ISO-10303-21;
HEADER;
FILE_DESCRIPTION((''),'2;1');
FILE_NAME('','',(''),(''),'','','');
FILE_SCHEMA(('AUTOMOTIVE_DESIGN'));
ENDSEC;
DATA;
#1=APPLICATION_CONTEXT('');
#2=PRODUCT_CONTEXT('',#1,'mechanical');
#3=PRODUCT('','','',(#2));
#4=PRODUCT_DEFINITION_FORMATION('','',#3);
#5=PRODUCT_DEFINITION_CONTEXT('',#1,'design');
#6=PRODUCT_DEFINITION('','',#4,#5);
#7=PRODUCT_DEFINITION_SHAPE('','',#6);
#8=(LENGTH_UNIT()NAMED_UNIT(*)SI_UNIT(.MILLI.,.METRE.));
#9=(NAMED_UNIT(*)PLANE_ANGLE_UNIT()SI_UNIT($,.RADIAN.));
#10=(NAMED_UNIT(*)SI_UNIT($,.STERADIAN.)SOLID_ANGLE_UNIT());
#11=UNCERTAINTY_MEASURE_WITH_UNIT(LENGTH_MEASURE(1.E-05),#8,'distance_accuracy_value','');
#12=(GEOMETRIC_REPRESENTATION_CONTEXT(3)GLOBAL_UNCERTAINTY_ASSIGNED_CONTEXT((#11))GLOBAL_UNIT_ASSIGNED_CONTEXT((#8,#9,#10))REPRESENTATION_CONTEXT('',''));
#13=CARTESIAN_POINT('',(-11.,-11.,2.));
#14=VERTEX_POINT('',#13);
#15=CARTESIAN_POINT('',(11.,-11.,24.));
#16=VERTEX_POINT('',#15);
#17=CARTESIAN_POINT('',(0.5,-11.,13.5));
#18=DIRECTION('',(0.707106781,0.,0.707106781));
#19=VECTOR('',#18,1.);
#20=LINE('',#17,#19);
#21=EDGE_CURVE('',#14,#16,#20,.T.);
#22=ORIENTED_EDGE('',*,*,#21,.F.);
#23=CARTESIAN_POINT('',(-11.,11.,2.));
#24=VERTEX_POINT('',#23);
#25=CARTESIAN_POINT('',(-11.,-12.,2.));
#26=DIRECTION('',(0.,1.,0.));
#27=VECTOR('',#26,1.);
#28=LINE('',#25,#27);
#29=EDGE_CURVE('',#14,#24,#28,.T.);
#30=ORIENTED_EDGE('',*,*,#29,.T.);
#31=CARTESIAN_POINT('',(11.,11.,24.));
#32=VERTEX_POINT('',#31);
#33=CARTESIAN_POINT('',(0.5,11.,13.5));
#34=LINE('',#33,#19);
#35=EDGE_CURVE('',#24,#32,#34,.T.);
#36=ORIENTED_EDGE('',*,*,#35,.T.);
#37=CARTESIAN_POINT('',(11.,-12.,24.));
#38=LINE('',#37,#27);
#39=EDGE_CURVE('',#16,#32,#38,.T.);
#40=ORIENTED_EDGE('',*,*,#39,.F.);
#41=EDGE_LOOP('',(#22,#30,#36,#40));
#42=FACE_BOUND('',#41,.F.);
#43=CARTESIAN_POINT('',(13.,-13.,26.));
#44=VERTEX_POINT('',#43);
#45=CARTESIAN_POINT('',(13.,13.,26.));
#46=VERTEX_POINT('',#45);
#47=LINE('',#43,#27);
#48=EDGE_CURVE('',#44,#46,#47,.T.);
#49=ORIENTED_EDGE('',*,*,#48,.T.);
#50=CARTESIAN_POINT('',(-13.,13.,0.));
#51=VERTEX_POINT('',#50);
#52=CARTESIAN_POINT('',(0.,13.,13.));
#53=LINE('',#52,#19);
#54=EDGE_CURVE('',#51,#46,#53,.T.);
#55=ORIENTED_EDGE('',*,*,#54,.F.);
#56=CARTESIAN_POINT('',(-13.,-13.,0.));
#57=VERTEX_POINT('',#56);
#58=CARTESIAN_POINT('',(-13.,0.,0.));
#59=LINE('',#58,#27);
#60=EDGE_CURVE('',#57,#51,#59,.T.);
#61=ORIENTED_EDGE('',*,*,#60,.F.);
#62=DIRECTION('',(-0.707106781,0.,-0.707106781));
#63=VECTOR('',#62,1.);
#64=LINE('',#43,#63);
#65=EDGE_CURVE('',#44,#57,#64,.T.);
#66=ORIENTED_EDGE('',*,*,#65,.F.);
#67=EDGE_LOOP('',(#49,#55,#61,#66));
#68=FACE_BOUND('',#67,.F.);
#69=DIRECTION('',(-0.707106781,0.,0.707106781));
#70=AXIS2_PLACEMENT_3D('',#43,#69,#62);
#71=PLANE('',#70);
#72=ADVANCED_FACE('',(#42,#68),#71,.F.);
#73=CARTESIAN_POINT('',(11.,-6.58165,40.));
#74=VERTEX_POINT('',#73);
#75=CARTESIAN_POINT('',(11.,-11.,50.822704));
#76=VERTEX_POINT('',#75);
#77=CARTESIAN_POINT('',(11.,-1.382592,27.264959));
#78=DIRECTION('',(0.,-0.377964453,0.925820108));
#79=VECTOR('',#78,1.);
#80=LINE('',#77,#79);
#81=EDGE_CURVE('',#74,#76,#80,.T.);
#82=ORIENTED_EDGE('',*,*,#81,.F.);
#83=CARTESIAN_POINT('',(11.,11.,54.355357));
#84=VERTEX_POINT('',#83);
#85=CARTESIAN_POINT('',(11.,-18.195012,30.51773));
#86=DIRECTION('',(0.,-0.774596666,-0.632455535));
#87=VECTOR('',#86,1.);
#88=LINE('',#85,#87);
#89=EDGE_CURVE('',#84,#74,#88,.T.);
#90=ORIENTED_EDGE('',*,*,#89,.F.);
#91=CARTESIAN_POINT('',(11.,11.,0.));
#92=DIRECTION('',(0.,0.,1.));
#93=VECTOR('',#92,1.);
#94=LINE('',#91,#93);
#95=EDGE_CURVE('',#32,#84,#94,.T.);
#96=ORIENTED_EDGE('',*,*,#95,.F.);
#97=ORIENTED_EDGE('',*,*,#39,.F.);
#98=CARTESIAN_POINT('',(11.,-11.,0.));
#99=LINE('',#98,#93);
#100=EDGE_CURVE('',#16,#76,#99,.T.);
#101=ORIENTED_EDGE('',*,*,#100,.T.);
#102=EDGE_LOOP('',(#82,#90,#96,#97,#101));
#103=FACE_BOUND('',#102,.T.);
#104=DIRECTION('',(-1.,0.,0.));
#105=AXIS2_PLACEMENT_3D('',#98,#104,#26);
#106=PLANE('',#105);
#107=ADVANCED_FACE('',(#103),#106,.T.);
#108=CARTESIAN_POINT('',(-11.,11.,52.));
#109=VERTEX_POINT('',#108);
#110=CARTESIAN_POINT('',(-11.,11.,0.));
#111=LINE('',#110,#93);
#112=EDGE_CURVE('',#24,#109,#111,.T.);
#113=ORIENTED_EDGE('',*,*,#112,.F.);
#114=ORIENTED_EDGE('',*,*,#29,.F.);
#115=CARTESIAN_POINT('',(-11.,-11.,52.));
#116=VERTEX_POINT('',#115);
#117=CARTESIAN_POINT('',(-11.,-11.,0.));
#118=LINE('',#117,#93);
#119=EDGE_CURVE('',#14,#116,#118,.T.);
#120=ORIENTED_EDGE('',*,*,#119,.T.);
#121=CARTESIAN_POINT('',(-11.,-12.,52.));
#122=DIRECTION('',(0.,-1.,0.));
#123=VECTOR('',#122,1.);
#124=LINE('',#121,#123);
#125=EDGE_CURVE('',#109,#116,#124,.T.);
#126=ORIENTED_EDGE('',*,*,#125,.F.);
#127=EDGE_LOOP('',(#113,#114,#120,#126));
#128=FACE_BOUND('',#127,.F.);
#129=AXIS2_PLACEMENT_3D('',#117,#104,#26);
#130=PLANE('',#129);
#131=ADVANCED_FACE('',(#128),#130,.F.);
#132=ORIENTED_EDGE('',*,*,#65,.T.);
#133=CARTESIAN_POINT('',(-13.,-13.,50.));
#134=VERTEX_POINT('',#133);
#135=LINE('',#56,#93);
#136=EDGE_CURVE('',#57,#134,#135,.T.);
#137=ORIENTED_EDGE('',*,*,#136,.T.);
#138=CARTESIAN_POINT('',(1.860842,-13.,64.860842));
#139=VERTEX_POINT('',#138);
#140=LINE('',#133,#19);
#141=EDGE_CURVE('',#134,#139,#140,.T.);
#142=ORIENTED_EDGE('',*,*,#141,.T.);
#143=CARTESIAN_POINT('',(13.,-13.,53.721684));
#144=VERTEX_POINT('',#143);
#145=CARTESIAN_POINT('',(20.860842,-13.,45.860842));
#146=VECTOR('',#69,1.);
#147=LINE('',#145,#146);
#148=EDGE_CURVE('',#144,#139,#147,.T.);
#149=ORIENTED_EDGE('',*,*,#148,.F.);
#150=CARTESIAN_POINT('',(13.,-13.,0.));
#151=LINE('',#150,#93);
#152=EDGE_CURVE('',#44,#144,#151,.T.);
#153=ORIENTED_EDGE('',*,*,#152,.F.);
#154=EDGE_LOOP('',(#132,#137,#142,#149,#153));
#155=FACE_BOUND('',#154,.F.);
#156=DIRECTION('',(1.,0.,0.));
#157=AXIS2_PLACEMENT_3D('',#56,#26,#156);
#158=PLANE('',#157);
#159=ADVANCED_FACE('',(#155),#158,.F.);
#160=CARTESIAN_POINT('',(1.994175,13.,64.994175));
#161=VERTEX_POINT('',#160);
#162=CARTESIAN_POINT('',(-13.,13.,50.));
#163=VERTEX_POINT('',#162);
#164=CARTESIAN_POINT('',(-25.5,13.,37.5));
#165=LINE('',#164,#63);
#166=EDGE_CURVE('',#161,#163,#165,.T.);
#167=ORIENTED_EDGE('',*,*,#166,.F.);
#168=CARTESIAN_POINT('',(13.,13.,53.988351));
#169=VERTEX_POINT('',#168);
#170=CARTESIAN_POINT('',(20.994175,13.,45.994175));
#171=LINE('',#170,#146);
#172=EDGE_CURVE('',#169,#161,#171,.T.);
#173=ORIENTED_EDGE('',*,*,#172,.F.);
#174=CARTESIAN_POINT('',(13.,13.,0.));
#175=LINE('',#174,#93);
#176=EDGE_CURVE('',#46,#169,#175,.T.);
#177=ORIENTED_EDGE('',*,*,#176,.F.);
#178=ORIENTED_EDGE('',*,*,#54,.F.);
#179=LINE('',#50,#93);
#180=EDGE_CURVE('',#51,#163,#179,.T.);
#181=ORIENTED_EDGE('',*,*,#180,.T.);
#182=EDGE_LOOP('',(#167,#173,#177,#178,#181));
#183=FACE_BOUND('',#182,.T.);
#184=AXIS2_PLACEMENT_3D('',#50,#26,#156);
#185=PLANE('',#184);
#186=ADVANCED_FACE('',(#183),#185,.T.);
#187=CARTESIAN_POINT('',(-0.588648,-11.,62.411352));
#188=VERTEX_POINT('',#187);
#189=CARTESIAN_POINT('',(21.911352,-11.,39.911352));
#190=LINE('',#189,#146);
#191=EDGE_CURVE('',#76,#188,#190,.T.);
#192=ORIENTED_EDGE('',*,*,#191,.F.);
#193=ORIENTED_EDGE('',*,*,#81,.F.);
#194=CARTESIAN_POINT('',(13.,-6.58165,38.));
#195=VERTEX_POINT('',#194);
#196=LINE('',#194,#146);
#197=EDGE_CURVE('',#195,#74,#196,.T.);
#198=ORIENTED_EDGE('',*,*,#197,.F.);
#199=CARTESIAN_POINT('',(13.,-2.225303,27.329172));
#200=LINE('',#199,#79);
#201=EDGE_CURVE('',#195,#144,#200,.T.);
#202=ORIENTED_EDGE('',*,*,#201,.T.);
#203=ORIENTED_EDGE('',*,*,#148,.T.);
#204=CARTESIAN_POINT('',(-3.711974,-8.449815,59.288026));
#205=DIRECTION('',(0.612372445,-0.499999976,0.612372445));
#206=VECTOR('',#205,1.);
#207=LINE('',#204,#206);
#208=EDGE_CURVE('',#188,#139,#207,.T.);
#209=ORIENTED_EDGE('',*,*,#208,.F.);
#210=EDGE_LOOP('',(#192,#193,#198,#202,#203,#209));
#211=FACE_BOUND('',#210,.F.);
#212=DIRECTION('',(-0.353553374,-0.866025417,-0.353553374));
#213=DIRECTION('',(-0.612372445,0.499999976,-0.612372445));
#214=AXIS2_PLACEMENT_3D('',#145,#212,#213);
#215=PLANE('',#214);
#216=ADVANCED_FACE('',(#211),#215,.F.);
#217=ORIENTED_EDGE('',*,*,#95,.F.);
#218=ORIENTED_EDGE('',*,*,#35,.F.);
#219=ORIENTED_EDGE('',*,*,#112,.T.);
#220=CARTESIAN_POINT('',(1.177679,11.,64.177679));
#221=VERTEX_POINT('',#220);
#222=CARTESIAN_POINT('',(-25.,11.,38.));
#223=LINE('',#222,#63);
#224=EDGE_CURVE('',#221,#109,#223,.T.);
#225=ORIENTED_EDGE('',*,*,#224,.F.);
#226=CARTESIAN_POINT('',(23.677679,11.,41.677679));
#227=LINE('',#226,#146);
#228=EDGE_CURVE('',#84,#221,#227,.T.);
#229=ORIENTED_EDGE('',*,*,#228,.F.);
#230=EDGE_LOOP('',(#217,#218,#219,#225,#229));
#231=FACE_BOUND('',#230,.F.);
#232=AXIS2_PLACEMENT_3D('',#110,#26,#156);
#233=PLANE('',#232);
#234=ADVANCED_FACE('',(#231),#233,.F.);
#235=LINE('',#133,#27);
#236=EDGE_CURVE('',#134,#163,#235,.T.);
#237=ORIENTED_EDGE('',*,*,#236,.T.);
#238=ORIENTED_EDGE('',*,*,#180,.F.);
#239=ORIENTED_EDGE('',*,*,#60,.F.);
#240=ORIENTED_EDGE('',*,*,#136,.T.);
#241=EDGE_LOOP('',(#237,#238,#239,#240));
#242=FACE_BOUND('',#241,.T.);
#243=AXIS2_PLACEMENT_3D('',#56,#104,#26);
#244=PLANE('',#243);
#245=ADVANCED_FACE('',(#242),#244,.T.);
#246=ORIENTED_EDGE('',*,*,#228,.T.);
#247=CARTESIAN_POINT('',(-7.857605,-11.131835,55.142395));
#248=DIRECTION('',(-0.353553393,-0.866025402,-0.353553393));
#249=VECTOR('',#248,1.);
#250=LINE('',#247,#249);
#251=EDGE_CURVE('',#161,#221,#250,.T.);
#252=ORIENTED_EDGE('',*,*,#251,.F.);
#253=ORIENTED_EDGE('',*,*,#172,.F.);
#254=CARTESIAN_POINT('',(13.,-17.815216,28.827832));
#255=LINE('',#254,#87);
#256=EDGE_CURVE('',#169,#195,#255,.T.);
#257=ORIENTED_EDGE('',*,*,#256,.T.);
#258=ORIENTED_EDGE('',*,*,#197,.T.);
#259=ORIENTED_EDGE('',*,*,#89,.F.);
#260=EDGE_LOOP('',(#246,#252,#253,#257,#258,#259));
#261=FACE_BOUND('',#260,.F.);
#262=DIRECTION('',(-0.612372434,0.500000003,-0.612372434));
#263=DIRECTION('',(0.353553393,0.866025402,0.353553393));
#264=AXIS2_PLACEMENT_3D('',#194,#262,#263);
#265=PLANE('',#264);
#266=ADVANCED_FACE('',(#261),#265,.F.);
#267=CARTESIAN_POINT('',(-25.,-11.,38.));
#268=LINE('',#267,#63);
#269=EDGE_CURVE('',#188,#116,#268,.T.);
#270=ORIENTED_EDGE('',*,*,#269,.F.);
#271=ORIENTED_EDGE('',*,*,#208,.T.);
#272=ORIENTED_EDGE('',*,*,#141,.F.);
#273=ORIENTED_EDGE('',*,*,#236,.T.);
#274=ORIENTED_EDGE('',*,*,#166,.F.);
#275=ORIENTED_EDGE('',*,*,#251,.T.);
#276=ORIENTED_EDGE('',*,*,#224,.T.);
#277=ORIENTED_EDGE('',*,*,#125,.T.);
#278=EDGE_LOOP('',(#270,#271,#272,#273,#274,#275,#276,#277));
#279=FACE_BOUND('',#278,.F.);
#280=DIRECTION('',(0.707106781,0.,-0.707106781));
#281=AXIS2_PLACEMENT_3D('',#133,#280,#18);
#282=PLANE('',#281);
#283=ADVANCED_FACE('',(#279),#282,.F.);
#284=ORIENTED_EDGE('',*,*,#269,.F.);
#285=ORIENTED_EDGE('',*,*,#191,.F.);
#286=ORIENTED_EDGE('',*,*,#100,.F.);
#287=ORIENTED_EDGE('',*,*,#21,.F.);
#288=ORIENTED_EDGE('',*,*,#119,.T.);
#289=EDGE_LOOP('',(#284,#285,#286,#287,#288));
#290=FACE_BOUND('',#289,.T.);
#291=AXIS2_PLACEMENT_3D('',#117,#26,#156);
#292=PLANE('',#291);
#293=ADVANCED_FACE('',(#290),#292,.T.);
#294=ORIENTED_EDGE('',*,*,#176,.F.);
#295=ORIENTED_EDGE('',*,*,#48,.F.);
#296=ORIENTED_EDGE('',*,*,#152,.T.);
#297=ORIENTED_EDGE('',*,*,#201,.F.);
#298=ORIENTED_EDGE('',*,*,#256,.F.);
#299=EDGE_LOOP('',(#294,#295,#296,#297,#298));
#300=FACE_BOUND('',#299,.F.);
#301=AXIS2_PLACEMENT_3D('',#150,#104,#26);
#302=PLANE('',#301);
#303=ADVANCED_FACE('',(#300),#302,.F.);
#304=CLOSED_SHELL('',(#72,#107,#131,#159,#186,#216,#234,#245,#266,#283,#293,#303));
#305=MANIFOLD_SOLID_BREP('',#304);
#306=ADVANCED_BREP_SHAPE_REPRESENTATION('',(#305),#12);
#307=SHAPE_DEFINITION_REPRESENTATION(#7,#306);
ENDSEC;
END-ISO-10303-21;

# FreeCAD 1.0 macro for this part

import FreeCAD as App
import Part
import Sketcher

V = App.Vector
Q = App.Units.Quantity

doc = App.newDocument("Part")
body = doc.addObject("PartDesign::Body", "Body")

sketch1 = body.newObject("Sketcher::SketchObject", "Sketch")
sketch1.AttachmentSupport = (doc.getObject("XY_Plane"), [""])
sketch1.MapMode = "FlatFace"
sketch1.addGeometry([
    Part.LineSegment(V(-13, 13, 0), V(-13, -13, 0)),
    Part.LineSegment(V(-13, -13, 0), V(13, -13, 0)),
    Part.LineSegment(V(13, -13, 0), V(13, 13, 0)),
    Part.LineSegment(V(13, 13, 0), V(-13, 13, 0)),
    Part.LineSegment(V(11, -11, 0), V(-11, -11, 0)),
    Part.LineSegment(V(-11, -11, 0), V(-11, 11, 0)),
    Part.LineSegment(V(-11, 11, 0), V(11, 11, 0)),
    Part.LineSegment(V(11, 11, 0), V(11, -11, 0)),
], False)
sketch1.addConstraint([
    Sketcher.Constraint("Coincident", 0, 2, 1, 1),
    Sketcher.Constraint("Coincident", 1, 2, 2, 1),
    Sketcher.Constraint("Coincident", 2, 2, 3, 1),
    Sketcher.Constraint("Coincident", 3, 2, 0, 1),
    Sketcher.Constraint("Coincident", 4, 2, 5, 1),
    Sketcher.Constraint("Coincident", 5, 2, 6, 1),
    Sketcher.Constraint("Coincident", 6, 2, 7, 1),
    Sketcher.Constraint("Coincident", 7, 2, 4, 1),
    Sketcher.Constraint("Vertical", 0),
    Sketcher.Constraint("Horizontal", 1),
    Sketcher.Constraint("Vertical", 2),
    Sketcher.Constraint("Horizontal", 3),
    Sketcher.Constraint("Horizontal", 4),
    Sketcher.Constraint("Vertical", 5),
    Sketcher.Constraint("Horizontal", 6),
    Sketcher.Constraint("Vertical", 7),
    Sketcher.Constraint("Symmetric", 0, 2, 2, 2, -1, 1),
    Sketcher.Constraint("Symmetric", 4, 2, 6, 2, -1, 1),
    Sketcher.Constraint("Equal", 3, 0),
    Sketcher.Constraint("Equal", 6, 5),
    Sketcher.Constraint("DistanceX", 1, 1, 1, 2, 26.0),
    Sketcher.Constraint("DistanceX", 4, 2, 4, 1, 22.0),
])
pad1 = body.newObject("PartDesign::Pad", "Pad")
pad1.Profile = sketch1
pad1.Length = 75

sketch2 = body.newObject("Sketcher::SketchObject", "Sketch001")
sketch2.AttachmentSupport = (doc.getObject("XZ_Plane"), [""])
sketch2.MapMode = "FlatFace"
sketch2.AttachmentOffset = App.Placement(V(0, 0, 13), App.Rotation())
sketch2.addGeometry([
    Part.LineSegment(V(13, 26, 0), V(-13, 0, 0)),
    Part.LineSegment(V(-13, 0, 0), V(13, 0, 0)),
    Part.LineSegment(V(13, 0, 0), V(13, 26, 0)),
], False)
sketch2.addConstraint([
    Sketcher.Constraint("Coincident", 0, 2, 1, 1),
    Sketcher.Constraint("Coincident", 1, 2, 2, 1),
    Sketcher.Constraint("Coincident", 2, 2, 0, 1),
    Sketcher.Constraint("Horizontal", 1),
    Sketcher.Constraint("Vertical", 2),
    Sketcher.Constraint("Symmetric", 0, 2, 1, 2, -1, 1),
    Sketcher.Constraint("Equal", 1, 2),
    Sketcher.Constraint("DistanceX", 1, 1, 1, 2, 26.0),
])
pocket1 = body.newObject("PartDesign::Pocket", "Pocket")
pocket1.Profile = sketch2
pocket1.Type = "ThroughAll"

sketch3 = body.newObject("Sketcher::SketchObject", "Sketch002")
sketch3.Placement = App.Placement(V(-12.5, 0, 12.5), App.Rotation(V(0, 1, 0), V(0.707106781, 0, 0.707106781), V(0.707106781, 0, -0.707106781), "ZXY"))
sketch3.addGeometry([
    Part.LineSegment(V(-13, 47, 0), V(-7, 36, 0)),
    Part.LineSegment(V(-7, 36, 0), V(13, 47, 0)),
    Part.LineSegment(V(13, 47, 0), V(13, 70, 0)),
    Part.LineSegment(V(13, 70, 0), V(-13, 70, 0)),
    Part.LineSegment(V(-13, 70, 0), V(-13, 47, 0)),
], False)
sketch3.addConstraint([
    Sketcher.Constraint("Coincident", 0, 2, 1, 1),
    Sketcher.Constraint("Coincident", 1, 2, 2, 1),
    Sketcher.Constraint("Coincident", 2, 2, 3, 1),
    Sketcher.Constraint("Coincident", 3, 2, 4, 1),
    Sketcher.Constraint("Coincident", 4, 2, 0, 1),
    Sketcher.Constraint("Vertical", 2),
    Sketcher.Constraint("Horizontal", 3),
    Sketcher.Constraint("Vertical", 4),
    Sketcher.Constraint("Perpendicular", 0, 1),
    Sketcher.Constraint("DistanceX", 3, 2, 3, 1, 26.0),
    Sketcher.Constraint("Angle", 0, Q("-60.000002 deg")),
    Sketcher.Constraint("DistanceX", -1, 1, 1, 2, 13.0),
    Sketcher.Constraint("Distance", 0, 12.836701),
    Sketcher.Constraint("DistanceY", 2, 1, 2, 2, 22.340192),
    Sketcher.Constraint("DistanceY", -1, 1, 2, 2, 69.708109),
])
pocket2 = body.newObject("PartDesign::Pocket", "Pocket001")
pocket2.Profile = sketch3
pocket2.Type = "ThroughAll"

sketch4 = body.newObject("Sketcher::SketchObject", "Sketch003")
sketch4.AttachmentSupport = (doc.getObject("XZ_Plane"), [""])
sketch4.MapMode = "FlatFace"
sketch4.AttachmentOffset = App.Placement(V(0, 0, 13), App.Rotation())
sketch4.addGeometry([
    Part.LineSegment(V(-13, 87.2, 0), V(-13, 50, 0)),
    Part.LineSegment(V(-13, 50, 0), V(20.8, 83.8, 0)),
    Part.LineSegment(V(20.8, 83.8, 0), V(20.8, 87.2, 0)),
    Part.LineSegment(V(20.8, 87.2, 0), V(-13, 87.2, 0)),
], False)
sketch4.addConstraint([
    Sketcher.Constraint("Coincident", 0, 2, 1, 1),
    Sketcher.Constraint("Coincident", 1, 2, 2, 1),
    Sketcher.Constraint("Coincident", 2, 2, 3, 1),
    Sketcher.Constraint("Coincident", 3, 2, 0, 1),
    Sketcher.Constraint("Vertical", 0),
    Sketcher.Constraint("Vertical", 2),
    Sketcher.Constraint("Horizontal", 3),
    Sketcher.Constraint("Angle", 1, Q("45 deg")),
    Sketcher.Constraint("DistanceX", 0, 2, -1, 1, 13.0),
    Sketcher.Constraint("DistanceY", -1, 1, 0, 2, 50.0),
    Sketcher.Constraint("Distance", 1, 47.824831),
    Sketcher.Constraint("DistanceY", 0, 2, 0, 1, 37.199546),
])
pocket3 = body.newObject("PartDesign::Pocket", "Pocket002")
pocket3.Profile = sketch4
pocket3.Type = "ThroughAll"

doc.recompute()
